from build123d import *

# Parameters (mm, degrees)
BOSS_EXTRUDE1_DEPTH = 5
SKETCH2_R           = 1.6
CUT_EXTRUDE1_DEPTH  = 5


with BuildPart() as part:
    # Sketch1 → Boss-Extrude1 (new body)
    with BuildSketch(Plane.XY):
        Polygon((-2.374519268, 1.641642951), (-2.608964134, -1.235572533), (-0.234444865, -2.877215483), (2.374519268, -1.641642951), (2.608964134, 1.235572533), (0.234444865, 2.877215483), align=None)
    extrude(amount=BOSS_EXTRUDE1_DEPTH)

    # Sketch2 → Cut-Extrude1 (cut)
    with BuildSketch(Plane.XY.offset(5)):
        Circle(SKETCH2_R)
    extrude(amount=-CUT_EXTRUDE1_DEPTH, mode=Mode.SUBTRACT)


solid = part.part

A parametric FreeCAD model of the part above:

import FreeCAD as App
import Part
import Sketcher

V = App.Vector
Q = App.Units.Quantity

doc = App.newDocument("Part")
body = doc.addObject("PartDesign::Body", "Body")

# Sketch on XY plane
sketch1 = body.newObject("Sketcher::SketchObject", "Sketch")
sketch1.AttachmentSupport = (doc.getObject("XY_Plane"), [""])
sketch1.MapMode = "FlatFace"
sketch1.addGeometry([
    Part.LineSegment(V(-2.4, 1.6, 0), V(-2.6, -1.2, 0)),  # 0
    Part.LineSegment(V(-2.6, -1.2, 0), V(-0.2, -2.9, 0)),  # 1
    Part.LineSegment(V(-0.2, -2.9, 0), V(2.4, -1.6, 0)),  # 2
    Part.LineSegment(V(2.4, -1.6, 0), V(2.6, 1.2, 0)),  # 3
    Part.LineSegment(V(2.6, 1.2, 0), V(0.2, 2.9, 0)),  # 4
    Part.LineSegment(V(0.2, 2.9, 0), V(-2.4, 1.6, 0)),  # 5
], False)
sketch1.addConstraint([
    Sketcher.Constraint("Coincident", 0, 2, 1, 1),
    Sketcher.Constraint("Coincident", 1, 2, 2, 1),
    Sketcher.Constraint("Coincident", 2, 2, 3, 1),
    Sketcher.Constraint("Coincident", 3, 2, 4, 1),
    Sketcher.Constraint("Coincident", 4, 2, 5, 1),
    Sketcher.Constraint("Coincident", 5, 2, 0, 1),
    Sketcher.Constraint("Symmetric", 0, 2, 3, 2, -1, 1),
    Sketcher.Constraint("Symmetric", 1, 2, 4, 2, -1, 1),
    Sketcher.Constraint("Symmetric", 2, 2, 5, 2, -1, 1),
    Sketcher.Constraint("Equal", 0, 1),
    Sketcher.Constraint("Equal", 1, 2),
    Sketcher.Constraint("Distance", 0, Q("2.886751 mm")),
    Sketcher.Constraint("DistanceX", -1, 1, 2, 2, Q("2.374519 mm")),
    Sketcher.Constraint("DistanceX", 0, 2, 1, 2, Q("2.374519 mm")),
    Sketcher.Constraint("DistanceY", 2, 2, 0, 2, Q("0.40607 mm")),
])
pad1 = body.newObject("PartDesign::Pad", "Pad")
pad1.Profile = sketch1
pad1.Length = 5

# Sketch on XY plane
sketch2 = body.newObject("Sketcher::SketchObject", "Sketch001")
sketch2.AttachmentSupport = (doc.getObject("XY_Plane"), [""])
sketch2.MapMode = "FlatFace"
sketch2.AttachmentOffset = App.Placement(V(0, 0, 5), App.Rotation())
sketch2.addGeometry(Part.Circle(V(0, 0, 0), V(0, 0, 1), 1.6), False)
sketch2.addConstraint([
    Sketcher.Constraint("Coincident", 0, 3, -1, 1),
    Sketcher.Constraint("Diameter", 0, Q("3.2 mm")),
])
pocket1 = body.newObject("PartDesign::Pocket", "Pocket")
pocket1.Profile = sketch2
pocket1.Length = 5

doc.recompute()
